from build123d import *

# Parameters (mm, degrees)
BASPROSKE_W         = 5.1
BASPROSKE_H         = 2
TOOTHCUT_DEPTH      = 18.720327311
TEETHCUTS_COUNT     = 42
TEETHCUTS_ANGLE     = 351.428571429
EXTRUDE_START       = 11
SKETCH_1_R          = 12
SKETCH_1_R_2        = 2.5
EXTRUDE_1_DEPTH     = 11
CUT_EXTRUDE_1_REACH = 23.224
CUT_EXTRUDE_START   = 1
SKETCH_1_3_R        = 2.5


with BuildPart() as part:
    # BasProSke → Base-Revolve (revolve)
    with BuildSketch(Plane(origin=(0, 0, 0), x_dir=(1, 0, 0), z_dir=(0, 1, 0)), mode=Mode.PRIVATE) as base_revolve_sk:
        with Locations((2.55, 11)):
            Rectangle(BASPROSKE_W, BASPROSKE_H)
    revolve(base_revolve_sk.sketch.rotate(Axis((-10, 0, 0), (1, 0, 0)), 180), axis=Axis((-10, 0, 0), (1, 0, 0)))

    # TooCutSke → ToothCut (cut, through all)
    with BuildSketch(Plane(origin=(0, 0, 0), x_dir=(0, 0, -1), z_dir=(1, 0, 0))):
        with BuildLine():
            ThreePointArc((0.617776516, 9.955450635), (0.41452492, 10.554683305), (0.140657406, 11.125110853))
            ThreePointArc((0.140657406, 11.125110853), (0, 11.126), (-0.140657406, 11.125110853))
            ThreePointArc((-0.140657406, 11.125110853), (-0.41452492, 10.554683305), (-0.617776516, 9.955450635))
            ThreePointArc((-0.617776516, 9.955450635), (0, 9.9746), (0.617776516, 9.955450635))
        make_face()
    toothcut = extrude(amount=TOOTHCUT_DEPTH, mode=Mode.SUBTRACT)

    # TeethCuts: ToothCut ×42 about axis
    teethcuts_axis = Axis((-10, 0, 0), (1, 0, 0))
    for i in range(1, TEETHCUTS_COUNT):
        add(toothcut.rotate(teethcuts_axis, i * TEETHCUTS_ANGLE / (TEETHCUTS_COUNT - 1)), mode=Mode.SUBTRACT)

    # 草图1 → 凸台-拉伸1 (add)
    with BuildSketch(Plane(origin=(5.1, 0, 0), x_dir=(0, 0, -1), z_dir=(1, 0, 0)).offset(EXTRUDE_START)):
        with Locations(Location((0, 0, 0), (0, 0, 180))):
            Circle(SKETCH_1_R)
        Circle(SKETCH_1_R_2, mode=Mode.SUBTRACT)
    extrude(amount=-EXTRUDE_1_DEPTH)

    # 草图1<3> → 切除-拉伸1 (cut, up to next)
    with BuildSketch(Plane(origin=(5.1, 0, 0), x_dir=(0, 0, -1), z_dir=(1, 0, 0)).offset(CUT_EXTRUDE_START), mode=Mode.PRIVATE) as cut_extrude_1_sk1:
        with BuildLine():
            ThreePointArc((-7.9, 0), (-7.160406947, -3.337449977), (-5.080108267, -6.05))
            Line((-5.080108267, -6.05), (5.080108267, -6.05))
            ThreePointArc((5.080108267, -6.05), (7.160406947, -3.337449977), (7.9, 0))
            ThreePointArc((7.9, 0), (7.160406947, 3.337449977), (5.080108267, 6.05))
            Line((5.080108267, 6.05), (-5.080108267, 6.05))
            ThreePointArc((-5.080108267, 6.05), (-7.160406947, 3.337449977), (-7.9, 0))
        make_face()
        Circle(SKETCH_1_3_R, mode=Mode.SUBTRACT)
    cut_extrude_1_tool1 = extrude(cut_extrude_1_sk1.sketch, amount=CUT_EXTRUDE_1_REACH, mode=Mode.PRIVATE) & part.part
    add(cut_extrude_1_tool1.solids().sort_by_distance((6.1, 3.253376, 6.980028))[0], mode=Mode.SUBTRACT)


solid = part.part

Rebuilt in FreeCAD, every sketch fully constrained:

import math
import FreeCAD as App
import Part
import Sketcher
Q = App.Units.Quantity

doc = App.newDocument("Part")
body = doc.addObject("PartDesign::Body", "Body")

# Sketch on XZ plane
sketch1 = doc.addObject("Sketcher::SketchObject", "Sketch")
body.addObject(sketch1)
sketch1.AttachmentSupport = (doc.XZ_Plane, [""])
sketch1.MapMode = "FlatFace"
sketch1.addGeometry([
    Part.LineSegment(App.Vector(0, -12, 0), App.Vector(0, -10, 0)),
    Part.LineSegment(App.Vector(0, -10, 0), App.Vector(5.1, -10, 0)),
    Part.LineSegment(App.Vector(5.1, -10, 0), App.Vector(5.1, -12, 0)),
    Part.LineSegment(App.Vector(5.1, -12, 0), App.Vector(0, -12, 0)),
], False)
sketch1.addConstraint([
    Sketcher.Constraint("Coincident", 0, 2, 1, 1),
    Sketcher.Constraint("Coincident", 1, 2, 2, 1),
    Sketcher.Constraint("Coincident", 2, 2, 3, 1),
    Sketcher.Constraint("Coincident", 3, 2, 0, 1),
    Sketcher.Constraint("Vertical", 0),
    Sketcher.Constraint("Horizontal", 1),
    Sketcher.Constraint("Vertical", 2),
    Sketcher.Constraint("Horizontal", 3),
    Sketcher.Constraint("PointOnObject", 0, 2, -2),
    Sketcher.Constraint("DistanceY", 0, 1, 0, 2, Q("2 mm")),
    Sketcher.Constraint("DistanceX", 1, 1, 1, 2, Q("5.1 mm")),
    Sketcher.Constraint("DistanceY", 0, 2, -1, 1, Q("10 mm")),
])
revolution = doc.addObject("PartDesign::Revolution", "Revolution")
body.addObject(revolution)
revolution.Profile = sketch1
revolution.ReferenceAxis = (sketch1, ["H_Axis"])
revolution.Angle = 360

# Sketch on YZ plane
sketch2 = doc.addObject("Sketcher::SketchObject", "Sketch001")
body.addObject(sketch2)
sketch2.AttachmentSupport = (doc.YZ_Plane, [""])
sketch2.MapMode = "FlatFace"
sketch2.addGeometry([
    Part.ArcOfCircle(Part.Circle(App.Vector(8.57, 4.45, 0), App.Vector(0, 0, 1), 5.25), math.radians(-74.72), math.radians(-60.9)),
    Part.ArcOfCircle(Part.Circle(App.Vector(0, 0, 0), App.Vector(0, 0, 1), 11.13), math.radians(-0.72), math.radians(0.72)),
    Part.ArcOfCircle(Part.Circle(App.Vector(8.57, -4.45, 0), App.Vector(0, 0, 1), 5.25), math.radians(60.9), math.radians(74.72)),
    Part.ArcOfCircle(Part.Circle(App.Vector(0, 0, 0), App.Vector(0, 0, 1), 9.97), math.radians(-3.55), math.radians(3.55)),
], False)
sketch2.addConstraint([
    Sketcher.Constraint("Coincident", 0, 2, 1, 1),
    Sketcher.Constraint("Coincident", 1, 2, 2, 1),
    Sketcher.Constraint("Coincident", 2, 2, 3, 2),
    Sketcher.Constraint("Coincident", 3, 1, 0, 1),
    Sketcher.Constraint("Coincident", 1, 3, -1, 1),
    Sketcher.Constraint("Coincident", 3, 3, -1, 1),
    Sketcher.Constraint("Equal", 0, 2),
    Sketcher.Constraint("Symmetric", 0, 3, 2, 3, -1),
    Sketcher.Constraint("Radius", 0, Q("5.25 mm")),
    Sketcher.Constraint("Radius", 1, Q("11.125999 mm")),
    Sketcher.Constraint("Radius", 3, Q("9.9746 mm")),
    Sketcher.Constraint("DistanceY", -1, 1, 0, 3, Q("4.446602 mm")),
    Sketcher.Constraint("DistanceX", -1, 1, 0, 3, Q("8.571769 mm")),
])
pocket1 = doc.addObject("PartDesign::Pocket", "Pocket")
body.addObject(pocket1)
pocket1.Profile = sketch2
pocket1.Type = "ThroughAll"
pocket1.Reversed = True
doc.recompute()

polarpattern = doc.addObject("PartDesign::PolarPattern", "PolarPattern")
body.addObject(polarpattern)
polarpattern.Originals = [pocket1]
polarpattern.Axis = (doc.X_Axis, [""])
polarpattern.Angle = 360
polarpattern.Occurrences = 42
body.Tip = polarpattern

# Sketch on YZ plane
sketch3 = doc.addObject("Sketcher::SketchObject", "Sketch002")
body.addObject(sketch3)
sketch3.AttachmentSupport = (doc.YZ_Plane, [""])
sketch3.MapMode = "FlatFace"
sketch3.AttachmentOffset = App.Placement(App.Vector(0, 0, 16.1), App.Rotation())
sketch3.addGeometry([
    Part.Circle(App.Vector(0, 0, 0), App.Vector(0, 0, 1), 12),
    Part.Circle(App.Vector(0, 0, 0), App.Vector(0, 0, 1), 2.5),
], False)
sketch3.addConstraint([
    Sketcher.Constraint("Coincident", 0, 3, -1, 1),
    Sketcher.Constraint("Coincident", 1, 3, -1, 1),
    Sketcher.Constraint("Diameter", 0, Q("24 mm")),
    Sketcher.Constraint("Diameter", 1, Q("5 mm")),
])
pad1 = doc.addObject("PartDesign::Pad", "Pad")
body.addObject(pad1)
pad1.Profile = sketch3
pad1.Length = 11
pad1.Reversed = True

# Sketch on YZ plane
sketch4 = doc.addObject("Sketcher::SketchObject", "Sketch003")
body.addObject(sketch4)
sketch4.AttachmentSupport = (doc.YZ_Plane, [""])
sketch4.MapMode = "FlatFace"
sketch4.AttachmentOffset = App.Placement(App.Vector(0, 0, 6.1), App.Rotation())
sketch4.addGeometry([
    Part.ArcOfCircle(Part.Circle(App.Vector(0, 0, 0), App.Vector(0, 0, 1), 7.9), math.radians(90), math.radians(140)),  # 0
    Part.LineSegment(App.Vector(-6, 5.1, 0), App.Vector(-6, -5.1, 0)),  # 1
    Part.ArcOfCircle(Part.Circle(App.Vector(0, 0, 0), App.Vector(0, 0, 1), 7.9), math.radians(-140), math.radians(-90)),  # 2
    Part.ArcOfCircle(Part.Circle(App.Vector(0, 0, 0), App.Vector(0, 0, 1), 7.9), math.radians(-90), math.radians(-40)),  # 3
    Part.LineSegment(App.Vector(6, -5.1, 0), App.Vector(6, 5.1, 0)),  # 4
    Part.ArcOfCircle(Part.Circle(App.Vector(0, 0, 0), App.Vector(0, 0, 1), 7.9), math.radians(40), math.radians(90)),  # 5
    Part.Circle(App.Vector(0, 0, 0), App.Vector(0, 0, 1), 2.5),  # 6
], False)
sketch4.addConstraint([
    Sketcher.Constraint("Coincident", 0, 2, 1, 1),
    Sketcher.Constraint("Coincident", 1, 2, 2, 1),
    Sketcher.Constraint("Tangent", 2, 2, 3, 1),
    Sketcher.Constraint("Coincident", 3, 2, 4, 1),
    Sketcher.Constraint("Coincident", 4, 2, 5, 1),
    Sketcher.Constraint("Tangent", 5, 2, 0, 1),
    Sketcher.Constraint("Vertical", 1),
    Sketcher.Constraint("Vertical", 4),
    Sketcher.Constraint("Coincident", 0, 3, -1, 1),
    Sketcher.Constraint("Coincident", 2, 3, -1, 1),
    Sketcher.Constraint("Coincident", 6, 3, -1, 1),
    Sketcher.Constraint("Equal", 0, 2),
    Sketcher.Constraint("Equal", 2, 3),
    Sketcher.Constraint("Equal", 3, 5),
    Sketcher.Constraint("PointOnObject", 2, 2, -2),
    Sketcher.Constraint("PointOnObject", 5, 2, -2),
    Sketcher.Constraint("Horizontal", 1, 2, 3, 2),
    Sketcher.Constraint("Diameter", 6, Q("5 mm")),
    Sketcher.Constraint("Radius", 0, Q("7.9 mm")),
    Sketcher.Constraint("DistanceX", 0, 2, -1, 1, Q("6.05 mm")),
])
pocket2 = doc.addObject("PartDesign::Pocket", "Pocket001")
body.addObject(pocket2)
pocket2.Profile = sketch4
pocket2.Length = 10
pocket2.Reversed = True

doc.recompute()
